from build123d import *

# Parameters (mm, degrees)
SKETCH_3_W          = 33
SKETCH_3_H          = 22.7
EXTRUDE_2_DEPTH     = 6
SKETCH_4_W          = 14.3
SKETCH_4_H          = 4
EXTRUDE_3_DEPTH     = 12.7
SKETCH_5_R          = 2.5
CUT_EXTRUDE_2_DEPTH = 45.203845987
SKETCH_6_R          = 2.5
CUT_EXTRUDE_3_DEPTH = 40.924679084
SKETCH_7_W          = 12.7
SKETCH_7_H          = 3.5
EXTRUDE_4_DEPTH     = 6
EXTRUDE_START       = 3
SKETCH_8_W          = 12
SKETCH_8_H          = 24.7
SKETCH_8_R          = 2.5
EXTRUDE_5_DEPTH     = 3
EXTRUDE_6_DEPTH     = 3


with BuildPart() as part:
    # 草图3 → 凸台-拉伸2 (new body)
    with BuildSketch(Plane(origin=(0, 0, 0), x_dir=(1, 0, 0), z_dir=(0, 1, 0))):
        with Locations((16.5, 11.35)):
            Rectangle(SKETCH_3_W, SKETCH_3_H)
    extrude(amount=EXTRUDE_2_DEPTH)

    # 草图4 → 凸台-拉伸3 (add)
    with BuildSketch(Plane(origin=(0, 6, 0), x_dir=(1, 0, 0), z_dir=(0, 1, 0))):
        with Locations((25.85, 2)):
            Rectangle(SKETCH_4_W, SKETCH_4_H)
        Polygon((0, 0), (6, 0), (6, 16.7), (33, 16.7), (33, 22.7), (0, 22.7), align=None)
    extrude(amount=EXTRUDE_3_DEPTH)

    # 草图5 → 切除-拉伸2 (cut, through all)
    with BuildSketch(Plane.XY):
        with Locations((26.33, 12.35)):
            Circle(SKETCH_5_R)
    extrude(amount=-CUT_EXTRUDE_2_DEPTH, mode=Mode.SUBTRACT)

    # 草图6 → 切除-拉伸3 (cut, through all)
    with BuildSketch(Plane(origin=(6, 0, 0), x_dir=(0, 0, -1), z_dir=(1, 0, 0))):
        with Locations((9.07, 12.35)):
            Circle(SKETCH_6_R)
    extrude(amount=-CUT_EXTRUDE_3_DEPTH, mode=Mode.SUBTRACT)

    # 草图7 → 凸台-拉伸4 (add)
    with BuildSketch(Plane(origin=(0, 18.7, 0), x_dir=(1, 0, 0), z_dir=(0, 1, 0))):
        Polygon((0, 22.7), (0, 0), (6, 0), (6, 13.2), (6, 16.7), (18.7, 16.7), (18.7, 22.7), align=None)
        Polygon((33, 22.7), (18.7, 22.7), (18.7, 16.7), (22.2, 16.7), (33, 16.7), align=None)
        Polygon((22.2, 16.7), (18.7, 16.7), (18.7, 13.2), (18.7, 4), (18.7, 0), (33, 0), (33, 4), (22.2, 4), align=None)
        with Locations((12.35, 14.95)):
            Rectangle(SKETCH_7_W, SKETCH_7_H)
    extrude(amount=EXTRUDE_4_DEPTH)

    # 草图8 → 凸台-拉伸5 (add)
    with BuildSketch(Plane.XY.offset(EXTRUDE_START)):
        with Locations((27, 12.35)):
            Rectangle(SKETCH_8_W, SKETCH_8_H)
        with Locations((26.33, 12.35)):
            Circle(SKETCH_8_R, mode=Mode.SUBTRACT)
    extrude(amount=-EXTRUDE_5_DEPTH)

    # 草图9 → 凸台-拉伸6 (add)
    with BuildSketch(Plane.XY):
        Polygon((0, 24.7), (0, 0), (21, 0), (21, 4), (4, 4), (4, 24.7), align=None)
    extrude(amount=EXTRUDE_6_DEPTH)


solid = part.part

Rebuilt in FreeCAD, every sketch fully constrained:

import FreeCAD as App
import Part
import Sketcher
Q = App.Units.Quantity

doc = App.newDocument("Part")
body = doc.addObject("PartDesign::Body", "Body")

# Sketch on XZ plane
sketch1 = body.newObject("Sketcher::SketchObject", "Sketch")
sketch1.AttachmentSupport = (doc.getObject("XZ_Plane"), [""])
sketch1.MapMode = "FlatFace"
sketch1.addGeometry(Part.LineSegment(App.Vector(0, -23, 0), App.Vector(0, 0, 0)), False)
sketch1.addGeometry(Part.LineSegment(App.Vector(0, 0, 0), App.Vector(33, 0, 0)), False)
sketch1.addGeometry(Part.LineSegment(App.Vector(33, 0, 0), App.Vector(33, -23, 0)), False)
sketch1.addGeometry(Part.LineSegment(App.Vector(33, -23, 0), App.Vector(0, -23, 0)), False)
sketch1.addConstraint(Sketcher.Constraint("Coincident", 0, 2, 1, 1))
sketch1.addConstraint(Sketcher.Constraint("Coincident", 1, 2, 2, 1))
sketch1.addConstraint(Sketcher.Constraint("Coincident", 2, 2, 3, 1))
sketch1.addConstraint(Sketcher.Constraint("Coincident", 3, 2, 0, 1))
sketch1.addConstraint(Sketcher.Constraint("Vertical", 0))
sketch1.addConstraint(Sketcher.Constraint("Horizontal", 1))
sketch1.addConstraint(Sketcher.Constraint("Vertical", 2))
sketch1.addConstraint(Sketcher.Constraint("Horizontal", 3))
sketch1.addConstraint(Sketcher.Constraint("Coincident", 0, 2, -1, 1))
sketch1.addConstraint(Sketcher.Constraint("DistanceX", 1, 1, 1, 2, Q("33 mm")))
sketch1.addConstraint(Sketcher.Constraint("DistanceY", 0, 1, 0, 2, Q("22.7 mm")))
pad1 = body.newObject("PartDesign::Pad", "Pad")
pad1.Profile = sketch1
pad1.Length = 6
pad1.Reversed = True

# Sketch on XZ plane
sketch2 = body.newObject("Sketcher::SketchObject", "Sketch001")
sketch2.AttachmentSupport = (doc.getObject("XZ_Plane"), [""])
sketch2.MapMode = "FlatFace"
sketch2.AttachmentOffset = App.Placement(App.Vector(0, 0, -6), App.Rotation())
sketch2.addGeometry(Part.LineSegment(App.Vector(18.7, -4, 0), App.Vector(18.7, 0, 0)), False)
sketch2.addGeometry(Part.LineSegment(App.Vector(18.7, 0, 0), App.Vector(33, 0, 0)), False)
sketch2.addGeometry(Part.LineSegment(App.Vector(33, 0, 0), App.Vector(33, -4, 0)), False)
sketch2.addGeometry(Part.LineSegment(App.Vector(33, -4, 0), App.Vector(18.7, -4, 0)), False)
sketch2.addGeometry(Part.LineSegment(App.Vector(0, 0, 0), App.Vector(6, 0, 0)), False)
sketch2.addGeometry(Part.LineSegment(App.Vector(6, 0, 0), App.Vector(6, -16.7, 0)), False)
sketch2.addGeometry(Part.LineSegment(App.Vector(6, -16.7, 0), App.Vector(33, -16.7, 0)), False)
sketch2.addGeometry(Part.LineSegment(App.Vector(33, -16.7, 0), App.Vector(33, -22.7, 0)), False)
sketch2.addGeometry(Part.LineSegment(App.Vector(33, -22.7, 0), App.Vector(0, -22.7, 0)), False)
sketch2.addGeometry(Part.LineSegment(App.Vector(0, -22.7, 0), App.Vector(0, 0, 0)), False)
sketch2.addConstraint(Sketcher.Constraint("Coincident", 0, 2, 1, 1))
sketch2.addConstraint(Sketcher.Constraint("Coincident", 1, 2, 2, 1))
sketch2.addConstraint(Sketcher.Constraint("Coincident", 2, 2, 3, 1))
sketch2.addConstraint(Sketcher.Constraint("Coincident", 3, 2, 0, 1))
sketch2.addConstraint(Sketcher.Constraint("Coincident", 4, 2, 5, 1))
sketch2.addConstraint(Sketcher.Constraint("Coincident", 5, 2, 6, 1))
sketch2.addConstraint(Sketcher.Constraint("Coincident", 6, 2, 7, 1))
sketch2.addConstraint(Sketcher.Constraint("Coincident", 7, 2, 8, 1))
sketch2.addConstraint(Sketcher.Constraint("Coincident", 8, 2, 9, 1))
sketch2.addConstraint(Sketcher.Constraint("Coincident", 9, 2, 4, 1))
sketch2.addConstraint(Sketcher.Constraint("Vertical", 0))
sketch2.addConstraint(Sketcher.Constraint("Horizontal", 1))
sketch2.addConstraint(Sketcher.Constraint("Vertical", 2))
sketch2.addConstraint(Sketcher.Constraint("Horizontal", 3))
sketch2.addConstraint(Sketcher.Constraint("Horizontal", 4))
sketch2.addConstraint(Sketcher.Constraint("Vertical", 5))
sketch2.addConstraint(Sketcher.Constraint("Horizontal", 6))
sketch2.addConstraint(Sketcher.Constraint("Vertical", 7))
sketch2.addConstraint(Sketcher.Constraint("Horizontal", 8))
sketch2.addConstraint(Sketcher.Constraint("Vertical", 9))
sketch2.addConstraint(Sketcher.Constraint("Coincident", 9, 2, -1, 1))
sketch2.addConstraint(Sketcher.Constraint("PointOnObject", 0, 2, -1))
sketch2.addConstraint(Sketcher.Constraint("Vertical", 2, 2, 6, 2))
sketch2.addConstraint(Sketcher.Constraint("Equal", 4, 7))
sketch2.addConstraint(Sketcher.Constraint("DistanceX", 4, 1, 4, 2, Q("6 mm")))
sketch2.addConstraint(Sketcher.Constraint("DistanceX", 6, 1, 6, 2, Q("27 mm")))
sketch2.addConstraint(Sketcher.Constraint("DistanceY", 0, 1, 0, 2, Q("4 mm")))
sketch2.addConstraint(Sketcher.Constraint("DistanceX", 1, 1, 1, 2, Q("14.3 mm")))
sketch2.addConstraint(Sketcher.Constraint("DistanceY", 5, 2, 5, 1, Q("16.7 mm")))
pad2 = body.newObject("PartDesign::Pad", "Pad001")
pad2.Profile = sketch2
pad2.Length = 12.7
pad2.Reversed = True

# Sketch on XY plane
sketch3 = body.newObject("Sketcher::SketchObject", "Sketch002")
sketch3.AttachmentSupport = (doc.getObject("XY_Plane"), [""])
sketch3.MapMode = "FlatFace"
sketch3.addGeometry(Part.Circle(App.Vector(26.3, 12.3, 0), App.Vector(0, 0, 1), 2.5), False)
sketch3.addConstraint(Sketcher.Constraint("Diameter", 0, Q("5 mm")))
sketch3.addConstraint(Sketcher.Constraint("DistanceX", -1, 1, 0, 3, Q("26.33 mm")))
sketch3.addConstraint(Sketcher.Constraint("DistanceY", -1, 1, 0, 3, Q("12.35 mm")))
pocket1 = body.newObject("PartDesign::Pocket", "Pocket")
pocket1.Profile = sketch3
pocket1.Type = "ThroughAll"

# Sketch on YZ plane
sketch4 = body.newObject("Sketcher::SketchObject", "Sketch003")
sketch4.AttachmentSupport = (doc.getObject("YZ_Plane"), [""])
sketch4.MapMode = "FlatFace"
sketch4.AttachmentOffset = App.Placement(App.Vector(0, 0, 6), App.Rotation())
sketch4.addGeometry(Part.Circle(App.Vector(12.3, -9.1, 0), App.Vector(0, 0, 1), 2.5), False)
sketch4.addConstraint(Sketcher.Constraint("Diameter", 0, Q("5 mm")))
sketch4.addConstraint(Sketcher.Constraint("DistanceX", -1, 1, 0, 3, Q("12.35 mm")))
sketch4.addConstraint(Sketcher.Constraint("DistanceY", 0, 3, -1, 1, Q("9.07 mm")))
pocket2 = body.newObject("PartDesign::Pocket", "Pocket001")
pocket2.Profile = sketch4
pocket2.Type = "ThroughAll"

# Sketch on XZ plane
sketch5 = body.newObject("Sketcher::SketchObject", "Sketch004")
sketch5.AttachmentSupport = (doc.getObject("XZ_Plane"), [""])
sketch5.MapMode = "FlatFace"
sketch5.AttachmentOffset = App.Placement(App.Vector(0, 0, -18.7), App.Rotation())
sketch5.addGeometry(Part.LineSegment(App.Vector(0, -22.7, 0), App.Vector(0, 0, 0)), False)
sketch5.addGeometry(Part.LineSegment(App.Vector(0, 0, 0), App.Vector(6, 0, 0)), False)
sketch5.addGeometry(Part.LineSegment(App.Vector(6, 0, 0), App.Vector(6, -13.2, 0)), False)
sketch5.addGeometry(Part.LineSegment(App.Vector(6, -13.2, 0), App.Vector(18.7, -13.2, 0)), False)
sketch5.addGeometry(Part.LineSegment(App.Vector(18.7, -13.2, 0), App.Vector(18.7, 0, 0)), False)
sketch5.addGeometry(Part.LineSegment(App.Vector(18.7, 0, 0), App.Vector(33, 0, 0)), False)
sketch5.addGeometry(Part.LineSegment(App.Vector(33, 0, 0), App.Vector(33, -4, 0)), False)
sketch5.addGeometry(Part.LineSegment(App.Vector(33, -4, 0), App.Vector(22.2, -4, 0)), False)
sketch5.addGeometry(Part.LineSegment(App.Vector(22.2, -4, 0), App.Vector(22.2, -16.7, 0)), False)
sketch5.addGeometry(Part.LineSegment(App.Vector(22.2, -16.7, 0), App.Vector(33, -16.7, 0)), False)
sketch5.addGeometry(Part.LineSegment(App.Vector(33, -16.7, 0), App.Vector(33, -22.7, 0)), False)
sketch5.addGeometry(Part.LineSegment(App.Vector(33, -22.7, 0), App.Vector(0, -22.7, 0)), False)
sketch5.addConstraint(Sketcher.Constraint("Coincident", 0, 2, 1, 1))
sketch5.addConstraint(Sketcher.Constraint("Coincident", 1, 2, 2, 1))
sketch5.addConstraint(Sketcher.Constraint("Coincident", 2, 2, 3, 1))
sketch5.addConstraint(Sketcher.Constraint("Coincident", 3, 2, 4, 1))
sketch5.addConstraint(Sketcher.Constraint("Coincident", 4, 2, 5, 1))
sketch5.addConstraint(Sketcher.Constraint("Coincident", 5, 2, 6, 1))
sketch5.addConstraint(Sketcher.Constraint("Coincident", 6, 2, 7, 1))
sketch5.addConstraint(Sketcher.Constraint("Coincident", 7, 2, 8, 1))
sketch5.addConstraint(Sketcher.Constraint("Coincident", 8, 2, 9, 1))
sketch5.addConstraint(Sketcher.Constraint("Coincident", 9, 2, 10, 1))
sketch5.addConstraint(Sketcher.Constraint("Coincident", 10, 2, 11, 1))
sketch5.addConstraint(Sketcher.Constraint("Coincident", 11, 2, 0, 1))
sketch5.addConstraint(Sketcher.Constraint("Vertical", 0))
sketch5.addConstraint(Sketcher.Constraint("Horizontal", 1))
sketch5.addConstraint(Sketcher.Constraint("Vertical", 2))
sketch5.addConstraint(Sketcher.Constraint("Horizontal", 3))
sketch5.addConstraint(Sketcher.Constraint("Vertical", 4))
sketch5.addConstraint(Sketcher.Constraint("Horizontal", 5))
sketch5.addConstraint(Sketcher.Constraint("Vertical", 6))
sketch5.addConstraint(Sketcher.Constraint("Horizontal", 7))
sketch5.addConstraint(Sketcher.Constraint("Vertical", 8))
sketch5.addConstraint(Sketcher.Constraint("Horizontal", 9))
sketch5.addConstraint(Sketcher.Constraint("Vertical", 10))
sketch5.addConstraint(Sketcher.Constraint("Horizontal", 11))
sketch5.addConstraint(Sketcher.Constraint("Coincident", 0, 2, -1, 1))
sketch5.addConstraint(Sketcher.Constraint("PointOnObject", 4, 2, -1))
sketch5.addConstraint(Sketcher.Constraint("Vertical", 6, 2, 9, 2))
sketch5.addConstraint(Sketcher.Constraint("Equal", 3, 8))
sketch5.addConstraint(Sketcher.Constraint("Equal", 1, 10))
sketch5.addConstraint(Sketcher.Constraint("DistanceX", 1, 1, 1, 2, Q("6 mm")))
sketch5.addConstraint(Sketcher.Constraint("DistanceX", 11, 2, 11, 1, Q("33 mm")))
sketch5.addConstraint(Sketcher.Constraint("DistanceY", 6, 2, 6, 1, Q("4 mm")))
sketch5.addConstraint(Sketcher.Constraint("DistanceX", 3, 1, 3, 2, Q("12.7 mm")))
sketch5.addConstraint(Sketcher.Constraint("DistanceX", 7, 2, 7, 1, Q("10.8 mm")))
sketch5.addConstraint(Sketcher.Constraint("DistanceY", 2, 2, 2, 1, Q("13.2 mm")))
pad3 = body.newObject("PartDesign::Pad", "Pad002")
pad3.Profile = sketch5
pad3.Length = 6
pad3.Reversed = True

# Sketch on XY plane
sketch6 = body.newObject("Sketcher::SketchObject", "Sketch005")
sketch6.AttachmentSupport = (doc.getObject("XY_Plane"), [""])
sketch6.MapMode = "FlatFace"
sketch6.AttachmentOffset = App.Placement(App.Vector(0, 0, 3), App.Rotation())
sketch6.addGeometry(Part.LineSegment(App.Vector(21, 24.7, 0), App.Vector(21, 0, 0)), False)
sketch6.addGeometry(Part.LineSegment(App.Vector(21, 0, 0), App.Vector(33, 0, 0)), False)
sketch6.addGeometry(Part.LineSegment(App.Vector(33, 0, 0), App.Vector(33, 24.7, 0)), False)
sketch6.addGeometry(Part.LineSegment(App.Vector(33, 24.7, 0), App.Vector(21, 24.7, 0)), False)
sketch6.addGeometry(Part.Circle(App.Vector(26.3, 12.3, 0), App.Vector(0, 0, 1), 2.5), False)
sketch6.addConstraint(Sketcher.Constraint("Coincident", 0, 2, 1, 1))
sketch6.addConstraint(Sketcher.Constraint("Coincident", 1, 2, 2, 1))
sketch6.addConstraint(Sketcher.Constraint("Coincident", 2, 2, 3, 1))
sketch6.addConstraint(Sketcher.Constraint("Coincident", 3, 2, 0, 1))
sketch6.addConstraint(Sketcher.Constraint("Vertical", 0))
sketch6.addConstraint(Sketcher.Constraint("Horizontal", 1))
sketch6.addConstraint(Sketcher.Constraint("Vertical", 2))
sketch6.addConstraint(Sketcher.Constraint("Horizontal", 3))
sketch6.addConstraint(Sketcher.Constraint("PointOnObject", 0, 2, -1))
sketch6.addConstraint(Sketcher.Constraint("Diameter", 4, Q("5 mm")))
sketch6.addConstraint(Sketcher.Constraint("DistanceX", 1, 1, 1, 2, Q("12 mm")))
sketch6.addConstraint(Sketcher.Constraint("DistanceY", 0, 2, 0, 1, Q("24.7 mm")))
sketch6.addConstraint(Sketcher.Constraint("DistanceX", -1, 1, 0, 2, Q("21 mm")))
sketch6.addConstraint(Sketcher.Constraint("DistanceX", -1, 1, 4, 3, Q("26.33 mm")))
sketch6.addConstraint(Sketcher.Constraint("DistanceY", -1, 1, 4, 3, Q("12.35 mm")))
pad4 = body.newObject("PartDesign::Pad", "Pad003")
pad4.Profile = sketch6
pad4.Length = 3
pad4.Reversed = True

# Sketch on XY plane
sketch7 = body.newObject("Sketcher::SketchObject", "Sketch006")
sketch7.AttachmentSupport = (doc.getObject("XY_Plane"), [""])
sketch7.MapMode = "FlatFace"
sketch7.addGeometry(Part.LineSegment(App.Vector(0, 24.7, 0), App.Vector(0, 0, 0)), False)
sketch7.addGeometry(Part.LineSegment(App.Vector(0, 0, 0), App.Vector(21, 0, 0)), False)
sketch7.addGeometry(Part.LineSegment(App.Vector(21, 0, 0), App.Vector(21, 4, 0)), False)
sketch7.addGeometry(Part.LineSegment(App.Vector(21, 4, 0), App.Vector(4, 4, 0)), False)
sketch7.addGeometry(Part.LineSegment(App.Vector(4, 4, 0), App.Vector(4, 24.7, 0)), False)
sketch7.addGeometry(Part.LineSegment(App.Vector(4, 24.7, 0), App.Vector(0, 24.7, 0)), False)
sketch7.addConstraint(Sketcher.Constraint("Coincident", 0, 2, 1, 1))
sketch7.addConstraint(Sketcher.Constraint("Coincident", 1, 2, 2, 1))
sketch7.addConstraint(Sketcher.Constraint("Coincident", 2, 2, 3, 1))
sketch7.addConstraint(Sketcher.Constraint("Coincident", 3, 2, 4, 1))
sketch7.addConstraint(Sketcher.Constraint("Coincident", 4, 2, 5, 1))
sketch7.addConstraint(Sketcher.Constraint("Coincident", 5, 2, 0, 1))
sketch7.addConstraint(Sketcher.Constraint("Vertical", 0))
sketch7.addConstraint(Sketcher.Constraint("Horizontal", 1))
sketch7.addConstraint(Sketcher.Constraint("Vertical", 2))
sketch7.addConstraint(Sketcher.Constraint("Horizontal", 3))
sketch7.addConstraint(Sketcher.Constraint("Vertical", 4))
sketch7.addConstraint(Sketcher.Constraint("Horizontal", 5))
sketch7.addConstraint(Sketcher.Constraint("Coincident", 0, 2, -1, 1))
sketch7.addConstraint(Sketcher.Constraint("Equal", 5, 2))
sketch7.addConstraint(Sketcher.Constraint("DistanceX", 1, 1, 1, 2, Q("21 mm")))
sketch7.addConstraint(Sketcher.Constraint("DistanceX", 3, 2, 3, 1, Q("17 mm")))
sketch7.addConstraint(Sketcher.Constraint("DistanceY", 0, 2, 0, 1, Q("24.7 mm")))
pad5 = body.newObject("PartDesign::Pad", "Pad004")
pad5.Profile = sketch7
pad5.Length = 3

doc.recompute()
